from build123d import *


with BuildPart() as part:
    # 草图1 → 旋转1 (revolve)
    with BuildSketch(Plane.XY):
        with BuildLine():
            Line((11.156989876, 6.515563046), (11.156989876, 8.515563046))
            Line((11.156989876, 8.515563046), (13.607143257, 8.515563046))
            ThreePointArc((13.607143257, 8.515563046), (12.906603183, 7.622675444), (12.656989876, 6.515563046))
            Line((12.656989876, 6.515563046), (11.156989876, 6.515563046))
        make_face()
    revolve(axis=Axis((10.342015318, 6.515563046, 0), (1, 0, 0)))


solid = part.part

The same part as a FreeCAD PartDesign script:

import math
import FreeCAD as App
import Part
import Sketcher
Q = App.Units.Quantity

doc = App.newDocument("Part")
body = doc.addObject("PartDesign::Body", "Body")

sketch1 = doc.addObject("Sketcher::SketchObject", "Sketch")
body.addObject(sketch1)
sketch1.AttachmentSupport = (doc.XY_Plane, [""])
sketch1.MapMode = "FlatFace"
sketch1.addGeometry(Part.LineSegment(App.Vector(11.2, 8.5, 0), App.Vector(11.2, 6.5, 0)), False)
sketch1.addGeometry(Part.LineSegment(App.Vector(11.2, 6.5, 0), App.Vector(12.7, 6.5, 0)), False)
sketch1.addGeometry(Part.ArcOfCircle(Part.Circle(App.Vector(15.2, 6.5, 0), App.Vector(0, 0, 1), 2.6), math.radians(129), math.radians(180)), False)
sketch1.addGeometry(Part.LineSegment(App.Vector(13.6, 8.5, 0), App.Vector(11.2, 8.5, 0)), False)
sketch1.addGeometry(Part.LineSegment(App.Vector(11.2, 6.5, 0), App.Vector(15.2, 6.5, 0)), True)
sketch1.addConstraint(Sketcher.Constraint("Coincident", 0, 2, 1, 1))
sketch1.addConstraint(Sketcher.Constraint("Coincident", 1, 2, 2, 2))
sketch1.addConstraint(Sketcher.Constraint("Coincident", 2, 1, 3, 1))
sketch1.addConstraint(Sketcher.Constraint("Coincident", 3, 2, 0, 1))
sketch1.addConstraint(Sketcher.Constraint("Vertical", 0))
sketch1.addConstraint(Sketcher.Constraint("Horizontal", 1))
sketch1.addConstraint(Sketcher.Constraint("Horizontal", 3))
sketch1.addConstraint(Sketcher.Constraint("Horizontal", 4))
sketch1.addConstraint(Sketcher.Constraint("Coincident", 4, 1, 0, 2))
sketch1.addConstraint(Sketcher.Constraint("Coincident", 4, 2, 2, 3))
sketch1.addConstraint(Sketcher.Constraint("DistanceY", 0, 2, 0, 1, Q("2 mm")))
sketch1.addConstraint(Sketcher.Constraint("Radius", 2, Q("2.58 mm")))
sketch1.addConstraint(Sketcher.Constraint("DistanceX", 1, 1, 1, 2, Q("1.5 mm")))
sketch1.addConstraint(Sketcher.Constraint("DistanceX", -1, 1, 2, 3, Q("15.23699 mm")))
sketch1.addConstraint(Sketcher.Constraint("DistanceY", -1, 1, 2, 3, Q("6.515563 mm")))
revolution = doc.addObject("PartDesign::Revolution", "Revolution")
body.addObject(revolution)
revolution.Profile = sketch1
revolution.ReferenceAxis = (sketch1, ["Axis0"])
revolution.Angle = 360

doc.recompute()
